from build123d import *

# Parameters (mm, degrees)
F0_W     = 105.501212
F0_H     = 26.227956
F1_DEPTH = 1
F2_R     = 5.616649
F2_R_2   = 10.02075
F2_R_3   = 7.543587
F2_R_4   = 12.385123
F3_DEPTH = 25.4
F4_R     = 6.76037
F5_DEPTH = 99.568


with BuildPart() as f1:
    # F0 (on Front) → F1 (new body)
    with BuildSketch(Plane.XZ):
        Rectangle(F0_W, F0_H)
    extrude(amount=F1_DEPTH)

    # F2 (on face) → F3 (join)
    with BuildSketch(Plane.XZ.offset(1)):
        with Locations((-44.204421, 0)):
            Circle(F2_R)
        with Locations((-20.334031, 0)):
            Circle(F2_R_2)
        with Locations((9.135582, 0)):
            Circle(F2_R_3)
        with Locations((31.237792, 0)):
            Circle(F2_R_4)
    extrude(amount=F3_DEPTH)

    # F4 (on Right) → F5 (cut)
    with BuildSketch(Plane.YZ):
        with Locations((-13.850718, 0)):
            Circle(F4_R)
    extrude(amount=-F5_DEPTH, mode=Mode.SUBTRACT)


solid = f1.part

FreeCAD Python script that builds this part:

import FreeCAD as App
import Part
import Sketcher
Q = App.Units.Quantity


def add_polygon(sketch, points):
    """Adds a closed chain of lines whose ends are joined by coincident constraints."""
    first, n = sketch.GeometryCount, len(points)
    for a, b in zip(points, points[1:] + points[:1]):
        sketch.addGeometry(Part.LineSegment(App.Vector(*a, 0), App.Vector(*b, 0)), False)
    for i in range(n):
        sketch.addConstraint(Sketcher.Constraint("Coincident", first + i, 2, first + (i + 1) % n, 1))

doc = App.newDocument("Part")
body = doc.addObject("PartDesign::Body", "Body")
body.AllowCompound = True

sketch1 = body.newObject("Sketcher::SketchObject", "Sketch")
sketch1.AttachmentSupport = (doc.getObject("XZ_Plane"), [""])
sketch1.MapMode = "FlatFace"
add_polygon(sketch1, [(-52.750606, 13.113978), (-52.750606, -13.113978), (52.750606, -13.113978), (52.750606, 13.113978)])
sketch1.addConstraint([
    Sketcher.Constraint("Vertical", 0),
    Sketcher.Constraint("Horizontal", 1),
    Sketcher.Constraint("Vertical", 2),
    Sketcher.Constraint("Horizontal", 3),
    Sketcher.Constraint("Symmetric", 0, 2, 2, 2, -1, 1),
    Sketcher.Constraint("DistanceX", 1, 1, 1, 2, 105.501212),
    Sketcher.Constraint("DistanceY", 0, 2, 0, 1, 26.227956),
])
pad1 = body.newObject("PartDesign::Pad", "Pad")
pad1.Profile = sketch1
pad1.Length = 1

sketch2 = body.newObject("Sketcher::SketchObject", "Sketch001")
sketch2.AttachmentSupport = (doc.getObject("XZ_Plane"), [""])
sketch2.MapMode = "FlatFace"
sketch2.AttachmentOffset = App.Placement(App.Vector(0, 0, 1), App.Rotation())
sketch2.addGeometry([
    Part.Circle(App.Vector(-44.204421, 0, 0), App.Vector(0, 0, 1), 5.616649),
    Part.Circle(App.Vector(-20.334031, 0, 0), App.Vector(0, 0, 1), 10.02075),
    Part.Circle(App.Vector(9.135582, 0, 0), App.Vector(0, 0, 1), 7.543587),
    Part.Circle(App.Vector(31.237792, 0, 0), App.Vector(0, 0, 1), 12.385123),
], False)
sketch2.addConstraint([
    Sketcher.Constraint("PointOnObject", 0, 3, -1),
    Sketcher.Constraint("PointOnObject", 1, 3, -1),
    Sketcher.Constraint("PointOnObject", 2, 3, -1),
    Sketcher.Constraint("PointOnObject", 3, 3, -1),
    Sketcher.Constraint("DistanceX", 0, 3, 2, 3, Q("2.1000001 in")),
    Sketcher.Constraint("Diameter", 1, 20.0415),
    Sketcher.Constraint("Diameter", 0, 11.233298),
    Sketcher.Constraint("Diameter", 2, 15.087174),
    Sketcher.Constraint("Diameter", 3, 24.770246),
    Sketcher.Constraint("DistanceX", 0, 3, -1, 1, 44.204421),
    Sketcher.Constraint("DistanceX", 1, 3, -1, 1, 20.334031),
    Sketcher.Constraint("DistanceX", -1, 1, 3, 3, 31.237792),
])
pad2 = body.newObject("PartDesign::Pad", "Pad001")
pad2.Profile = sketch2
pad2.Length = Q("1 in")

sketch3 = body.newObject("Sketcher::SketchObject", "Sketch002")
sketch3.AttachmentSupport = (doc.getObject("YZ_Plane"), [""])
sketch3.MapMode = "FlatFace"
sketch3.addGeometry(Part.Circle(App.Vector(-13.850718, 0, 0), App.Vector(0, 0, 1), 6.76037), False)
sketch3.addConstraint([
    Sketcher.Constraint("PointOnObject", 0, 3, -1),
    Sketcher.Constraint("Diameter", 0, 13.52074),
    Sketcher.Constraint("DistanceX", 0, 3, -1, 1, 13.850718),
])
pocket1 = body.newObject("PartDesign::Pocket", "Pocket")
pocket1.Profile = sketch3
pocket1.Length = Q("3.92 in")

doc.recompute()
